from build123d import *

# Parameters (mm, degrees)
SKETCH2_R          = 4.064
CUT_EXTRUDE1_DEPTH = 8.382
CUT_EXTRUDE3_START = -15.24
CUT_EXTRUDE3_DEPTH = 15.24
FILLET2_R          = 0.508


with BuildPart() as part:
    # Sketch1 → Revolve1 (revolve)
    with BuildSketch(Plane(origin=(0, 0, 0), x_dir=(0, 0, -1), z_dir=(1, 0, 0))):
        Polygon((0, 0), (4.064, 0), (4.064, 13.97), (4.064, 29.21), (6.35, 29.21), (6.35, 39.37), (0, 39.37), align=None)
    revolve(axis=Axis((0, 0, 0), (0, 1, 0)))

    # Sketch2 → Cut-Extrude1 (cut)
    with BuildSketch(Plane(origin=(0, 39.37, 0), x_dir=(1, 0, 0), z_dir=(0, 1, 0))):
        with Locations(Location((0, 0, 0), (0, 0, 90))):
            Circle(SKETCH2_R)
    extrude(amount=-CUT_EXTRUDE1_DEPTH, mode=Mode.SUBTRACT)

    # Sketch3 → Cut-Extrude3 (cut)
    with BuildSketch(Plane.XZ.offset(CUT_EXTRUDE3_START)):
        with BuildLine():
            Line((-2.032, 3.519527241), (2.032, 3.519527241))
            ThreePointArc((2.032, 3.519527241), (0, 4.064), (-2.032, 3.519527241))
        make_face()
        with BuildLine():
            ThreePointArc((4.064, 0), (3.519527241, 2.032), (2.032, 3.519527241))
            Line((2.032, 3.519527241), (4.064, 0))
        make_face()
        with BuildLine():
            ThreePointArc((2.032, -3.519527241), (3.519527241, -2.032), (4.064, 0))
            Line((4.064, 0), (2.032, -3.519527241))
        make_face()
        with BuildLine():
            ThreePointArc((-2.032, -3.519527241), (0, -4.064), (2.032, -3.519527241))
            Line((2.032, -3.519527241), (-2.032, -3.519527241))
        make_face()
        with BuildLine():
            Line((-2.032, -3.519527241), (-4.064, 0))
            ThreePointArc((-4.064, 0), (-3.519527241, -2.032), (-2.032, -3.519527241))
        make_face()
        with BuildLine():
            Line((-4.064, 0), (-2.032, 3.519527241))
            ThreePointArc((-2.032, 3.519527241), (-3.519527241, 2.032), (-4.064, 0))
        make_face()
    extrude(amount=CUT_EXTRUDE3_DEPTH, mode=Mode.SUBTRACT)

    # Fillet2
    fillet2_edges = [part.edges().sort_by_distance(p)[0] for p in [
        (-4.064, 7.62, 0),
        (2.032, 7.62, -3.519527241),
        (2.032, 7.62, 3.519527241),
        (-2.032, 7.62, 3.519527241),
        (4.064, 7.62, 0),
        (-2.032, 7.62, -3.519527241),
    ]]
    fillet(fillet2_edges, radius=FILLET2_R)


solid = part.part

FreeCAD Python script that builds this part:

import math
import FreeCAD as App
import Part
import Sketcher
from FreeCAD import Vector
Q = App.Units.Quantity


def edges_at(feature, points):
    """Names of the edges that pass closest to the given points."""
    edges = feature.Shape.Edges
    near = lambda p: min(range(len(edges)), key=lambda i: edges[i].distToShape(Part.Vertex(*p))[0])
    return sorted({f"Edge{near(p) + 1}" for p in points})

doc = App.newDocument("Part")
params = doc.addObject("Spreadsheet::Sheet", "Params")
for row, (alias, value) in enumerate([
    ("sketch1_width", "0.4 in"),
    ("sketch1_width2", "1.15 in"),
    ("sketch1_height", "0.16 in"),
    ("sketch1_height2", "0.09 in"),
    ("revolution_angle", "360 deg"),
    ("sketch2_diameter", "0.32 in"),
    ("pocket1_length", "0.33 in"),
    ("sketch3_radius", "0.16 in"),
    ("pocket2_length", "0.6 in"),
    ("fillet_radius", "0.02 in"),
], start=1):
    params.set(f"A{row}", alias)
    params.set(f"B{row}", "=" + value)
    params.setAlias(f"B{row}", alias)

body = doc.addObject("PartDesign::Body", "Body")

sketch1 = body.newObject("Sketcher::SketchObject", "Sketch")
sketch1.AttachmentSupport = (doc.getObject("YZ_Plane"), [""])
sketch1.MapMode = "FlatFace"
sketch1.addGeometry([
    Part.LineSegment(Vector(0, 0, 0), Vector(0, -4.064, 0)),
    Part.LineSegment(Vector(0, -4.064, 0), Vector(29.21, -4.064, 0)),
    Part.LineSegment(Vector(29.21, -4.064, 0), Vector(29.21, -6.35, 0)),
    Part.LineSegment(Vector(29.21, -6.35, 0), Vector(39.37, -6.35, 0)),
    Part.LineSegment(Vector(39.37, -6.35, 0), Vector(39.37, 0, 0)),
    Part.LineSegment(Vector(39.37, 0, 0), Vector(0, 0, 0)),
], False)
sketch1.addConstraint([
    Sketcher.Constraint("Coincident", 0, 2, 1, 1),
    Sketcher.Constraint("Coincident", 1, 2, 2, 1),
    Sketcher.Constraint("Coincident", 2, 2, 3, 1),
    Sketcher.Constraint("Coincident", 3, 2, 4, 1),
    Sketcher.Constraint("Coincident", 4, 2, 5, 1),
    Sketcher.Constraint("Coincident", 5, 2, 0, 1),
    Sketcher.Constraint("Vertical", 0),
    Sketcher.Constraint("Horizontal", 1),
    Sketcher.Constraint("Vertical", 2),
    Sketcher.Constraint("Horizontal", 3),
    Sketcher.Constraint("Vertical", 4),
    Sketcher.Constraint("Horizontal", 5),
    Sketcher.Constraint("Coincident", 5, 2, -1, 1),
    Sketcher.Constraint("DistanceX", 3, 1, 3, 2, Q("0.4 in")),
    Sketcher.Constraint("DistanceX", 1, 1, 1, 2, Q("1.15 in")),
    Sketcher.Constraint("DistanceY", 0, 2, 0, 1, Q("0.16 in")),
    Sketcher.Constraint("DistanceY", 2, 2, 2, 1, Q("0.09 in")),
])
sketch1.setExpression("Constraints[13]", "Params.sketch1_width")
sketch1.setExpression("Constraints[14]", "Params.sketch1_width2")
sketch1.setExpression("Constraints[15]", "Params.sketch1_height")
sketch1.setExpression("Constraints[16]", "Params.sketch1_height2")
revolution = body.newObject("PartDesign::Revolution", "Revolution")
revolution.Profile = sketch1
revolution.ReferenceAxis = (sketch1, ["H_Axis"])
revolution.setExpression("Angle", "Params.revolution_angle")

sketch2 = body.newObject("Sketcher::SketchObject", "Sketch001")
sketch2.AttachmentSupport = (doc.getObject("XZ_Plane"), [""])
sketch2.MapMode = "FlatFace"
sketch2.AttachmentOffset = App.Placement(Vector(0, 0, -1.55 * 25.4), App.Rotation())
sketch2.addGeometry(Part.Circle(Vector(0, 0, 0), Vector(0, 0, 1), 4.064), False)
sketch2.addConstraint([
    Sketcher.Constraint("Coincident", 0, 3, -1, 1),
    Sketcher.Constraint("Diameter", 0, Q("0.32 in")),
])
sketch2.setExpression("Constraints[1]", "Params.sketch2_diameter")
pocket1 = body.newObject("PartDesign::Pocket", "Pocket")
pocket1.Profile = sketch2
pocket1.setExpression("Length", "Params.pocket1_length")
pocket1.Reversed = True

sketch3 = body.newObject("Sketcher::SketchObject", "Sketch002")
sketch3.AttachmentSupport = (doc.getObject("XZ_Plane"), [""])
sketch3.MapMode = "FlatFace"
sketch3.AttachmentOffset = App.Placement(Vector(0, 0, -0.6 * 25.4), App.Rotation())
sketch3.addGeometry([
    Part.LineSegment(Vector(-2.032, 3.519527, 0), Vector(2.032, 3.519527, 0)),
    Part.ArcOfCircle(Part.Circle(Vector(0, 0, 0), Vector(0, 0, 1), 4.064), math.radians(60), math.radians(120)),
    Part.ArcOfCircle(Part.Circle(Vector(0, 0, 0), Vector(0, 0, 1), 4.064), math.radians(0), math.radians(60)),
    Part.LineSegment(Vector(2.032, 3.519527, 0), Vector(4.064, 0, 0)),
    Part.ArcOfCircle(Part.Circle(Vector(0, 0, 0), Vector(0, 0, 1), 4.064), math.radians(-60), math.radians(0)),
    Part.LineSegment(Vector(4.064, 0, 0), Vector(2.032, -3.519527, 0)),
    Part.ArcOfCircle(Part.Circle(Vector(0, 0, 0), Vector(0, 0, 1), 4.064), math.radians(-120), math.radians(-60)),
    Part.LineSegment(Vector(2.032, -3.519527, 0), Vector(-2.032, -3.519527, 0)),
    Part.LineSegment(Vector(-2.032, -3.519527, 0), Vector(-4.064, 0, 0)),
    Part.ArcOfCircle(Part.Circle(Vector(0, 0, 0), Vector(0, 0, 1), 4.064), math.radians(180), math.radians(240)),
    Part.LineSegment(Vector(-4.064, 0, 0), Vector(-2.032, 3.519527, 0)),
    Part.ArcOfCircle(Part.Circle(Vector(0, 0, 0), Vector(0, 0, 1), 4.064), math.radians(120), math.radians(180)),
], False)
sketch3.addConstraint([
    Sketcher.Constraint("Coincident", 0, 1, 1, 2),
    Sketcher.Constraint("Coincident", 1, 1, 0, 2),
    Sketcher.Constraint("Coincident", 2, 1, 3, 2),
    Sketcher.Constraint("Coincident", 3, 1, 2, 2),
    Sketcher.Constraint("Coincident", 4, 1, 5, 2),
    Sketcher.Constraint("Coincident", 5, 1, 4, 2),
    Sketcher.Constraint("Coincident", 6, 1, 7, 2),
    Sketcher.Constraint("Coincident", 7, 1, 6, 2),
    Sketcher.Constraint("Coincident", 8, 1, 9, 2),
    Sketcher.Constraint("Coincident", 9, 1, 8, 2),
    Sketcher.Constraint("Coincident", 10, 1, 11, 2),
    Sketcher.Constraint("Coincident", 11, 1, 10, 2),
    Sketcher.Constraint("Horizontal", 0),
    Sketcher.Constraint("Horizontal", 7),
    Sketcher.Constraint("Coincident", 1, 3, -1, 1),
    Sketcher.Constraint("Coincident", 2, 3, -1, 1),
    Sketcher.Constraint("Coincident", 4, 3, -1, 1),
    Sketcher.Constraint("Coincident", 6, 3, -1, 1),
    Sketcher.Constraint("Coincident", 9, 3, -1, 1),
    Sketcher.Constraint("Coincident", 11, 3, -1, 1),
    Sketcher.Constraint("Coincident", 3, 1, 1, 1),
    Sketcher.Constraint("Coincident", 5, 1, 2, 1),
    Sketcher.Constraint("Coincident", 7, 1, 4, 1),
    Sketcher.Constraint("Coincident", 8, 1, 6, 1),
    Sketcher.Constraint("Coincident", 10, 1, 9, 1),
    Sketcher.Constraint("PointOnObject", 2, 1, -1),
    Sketcher.Constraint("PointOnObject", 9, 1, -1),
    Sketcher.Constraint("Parallel", 3, 8),
    Sketcher.Constraint("Parallel", 5, 10),
    Sketcher.Constraint("Radius", 1, Q("0.16 in")),
    Sketcher.Constraint("Angle", 3, Q("-60 deg")),
])
sketch3.setExpression("Constraints[29]", "Params.sketch3_radius")
pocket2 = body.newObject("PartDesign::Pocket", "Pocket001")
pocket2.Profile = sketch3
pocket2.setExpression("Length", "Params.pocket2_length")
pocket2.Reversed = True
doc.recompute()

fillet = body.newObject("PartDesign::Fillet", "Fillet")
fillet.Base = (pocket2, edges_at(pocket2, [
    (-4.064, 7.62, 0),
    (2.032, 7.62, -3.52),
    (2.032, 7.62, 3.52),
    (-2.032, 7.62, 3.52),
    (4.064, 7.62, 0),
    (-2.032, 7.62, -3.52),
]))
fillet.setExpression("Radius", "Params.fillet_radius")

doc.recompute()
